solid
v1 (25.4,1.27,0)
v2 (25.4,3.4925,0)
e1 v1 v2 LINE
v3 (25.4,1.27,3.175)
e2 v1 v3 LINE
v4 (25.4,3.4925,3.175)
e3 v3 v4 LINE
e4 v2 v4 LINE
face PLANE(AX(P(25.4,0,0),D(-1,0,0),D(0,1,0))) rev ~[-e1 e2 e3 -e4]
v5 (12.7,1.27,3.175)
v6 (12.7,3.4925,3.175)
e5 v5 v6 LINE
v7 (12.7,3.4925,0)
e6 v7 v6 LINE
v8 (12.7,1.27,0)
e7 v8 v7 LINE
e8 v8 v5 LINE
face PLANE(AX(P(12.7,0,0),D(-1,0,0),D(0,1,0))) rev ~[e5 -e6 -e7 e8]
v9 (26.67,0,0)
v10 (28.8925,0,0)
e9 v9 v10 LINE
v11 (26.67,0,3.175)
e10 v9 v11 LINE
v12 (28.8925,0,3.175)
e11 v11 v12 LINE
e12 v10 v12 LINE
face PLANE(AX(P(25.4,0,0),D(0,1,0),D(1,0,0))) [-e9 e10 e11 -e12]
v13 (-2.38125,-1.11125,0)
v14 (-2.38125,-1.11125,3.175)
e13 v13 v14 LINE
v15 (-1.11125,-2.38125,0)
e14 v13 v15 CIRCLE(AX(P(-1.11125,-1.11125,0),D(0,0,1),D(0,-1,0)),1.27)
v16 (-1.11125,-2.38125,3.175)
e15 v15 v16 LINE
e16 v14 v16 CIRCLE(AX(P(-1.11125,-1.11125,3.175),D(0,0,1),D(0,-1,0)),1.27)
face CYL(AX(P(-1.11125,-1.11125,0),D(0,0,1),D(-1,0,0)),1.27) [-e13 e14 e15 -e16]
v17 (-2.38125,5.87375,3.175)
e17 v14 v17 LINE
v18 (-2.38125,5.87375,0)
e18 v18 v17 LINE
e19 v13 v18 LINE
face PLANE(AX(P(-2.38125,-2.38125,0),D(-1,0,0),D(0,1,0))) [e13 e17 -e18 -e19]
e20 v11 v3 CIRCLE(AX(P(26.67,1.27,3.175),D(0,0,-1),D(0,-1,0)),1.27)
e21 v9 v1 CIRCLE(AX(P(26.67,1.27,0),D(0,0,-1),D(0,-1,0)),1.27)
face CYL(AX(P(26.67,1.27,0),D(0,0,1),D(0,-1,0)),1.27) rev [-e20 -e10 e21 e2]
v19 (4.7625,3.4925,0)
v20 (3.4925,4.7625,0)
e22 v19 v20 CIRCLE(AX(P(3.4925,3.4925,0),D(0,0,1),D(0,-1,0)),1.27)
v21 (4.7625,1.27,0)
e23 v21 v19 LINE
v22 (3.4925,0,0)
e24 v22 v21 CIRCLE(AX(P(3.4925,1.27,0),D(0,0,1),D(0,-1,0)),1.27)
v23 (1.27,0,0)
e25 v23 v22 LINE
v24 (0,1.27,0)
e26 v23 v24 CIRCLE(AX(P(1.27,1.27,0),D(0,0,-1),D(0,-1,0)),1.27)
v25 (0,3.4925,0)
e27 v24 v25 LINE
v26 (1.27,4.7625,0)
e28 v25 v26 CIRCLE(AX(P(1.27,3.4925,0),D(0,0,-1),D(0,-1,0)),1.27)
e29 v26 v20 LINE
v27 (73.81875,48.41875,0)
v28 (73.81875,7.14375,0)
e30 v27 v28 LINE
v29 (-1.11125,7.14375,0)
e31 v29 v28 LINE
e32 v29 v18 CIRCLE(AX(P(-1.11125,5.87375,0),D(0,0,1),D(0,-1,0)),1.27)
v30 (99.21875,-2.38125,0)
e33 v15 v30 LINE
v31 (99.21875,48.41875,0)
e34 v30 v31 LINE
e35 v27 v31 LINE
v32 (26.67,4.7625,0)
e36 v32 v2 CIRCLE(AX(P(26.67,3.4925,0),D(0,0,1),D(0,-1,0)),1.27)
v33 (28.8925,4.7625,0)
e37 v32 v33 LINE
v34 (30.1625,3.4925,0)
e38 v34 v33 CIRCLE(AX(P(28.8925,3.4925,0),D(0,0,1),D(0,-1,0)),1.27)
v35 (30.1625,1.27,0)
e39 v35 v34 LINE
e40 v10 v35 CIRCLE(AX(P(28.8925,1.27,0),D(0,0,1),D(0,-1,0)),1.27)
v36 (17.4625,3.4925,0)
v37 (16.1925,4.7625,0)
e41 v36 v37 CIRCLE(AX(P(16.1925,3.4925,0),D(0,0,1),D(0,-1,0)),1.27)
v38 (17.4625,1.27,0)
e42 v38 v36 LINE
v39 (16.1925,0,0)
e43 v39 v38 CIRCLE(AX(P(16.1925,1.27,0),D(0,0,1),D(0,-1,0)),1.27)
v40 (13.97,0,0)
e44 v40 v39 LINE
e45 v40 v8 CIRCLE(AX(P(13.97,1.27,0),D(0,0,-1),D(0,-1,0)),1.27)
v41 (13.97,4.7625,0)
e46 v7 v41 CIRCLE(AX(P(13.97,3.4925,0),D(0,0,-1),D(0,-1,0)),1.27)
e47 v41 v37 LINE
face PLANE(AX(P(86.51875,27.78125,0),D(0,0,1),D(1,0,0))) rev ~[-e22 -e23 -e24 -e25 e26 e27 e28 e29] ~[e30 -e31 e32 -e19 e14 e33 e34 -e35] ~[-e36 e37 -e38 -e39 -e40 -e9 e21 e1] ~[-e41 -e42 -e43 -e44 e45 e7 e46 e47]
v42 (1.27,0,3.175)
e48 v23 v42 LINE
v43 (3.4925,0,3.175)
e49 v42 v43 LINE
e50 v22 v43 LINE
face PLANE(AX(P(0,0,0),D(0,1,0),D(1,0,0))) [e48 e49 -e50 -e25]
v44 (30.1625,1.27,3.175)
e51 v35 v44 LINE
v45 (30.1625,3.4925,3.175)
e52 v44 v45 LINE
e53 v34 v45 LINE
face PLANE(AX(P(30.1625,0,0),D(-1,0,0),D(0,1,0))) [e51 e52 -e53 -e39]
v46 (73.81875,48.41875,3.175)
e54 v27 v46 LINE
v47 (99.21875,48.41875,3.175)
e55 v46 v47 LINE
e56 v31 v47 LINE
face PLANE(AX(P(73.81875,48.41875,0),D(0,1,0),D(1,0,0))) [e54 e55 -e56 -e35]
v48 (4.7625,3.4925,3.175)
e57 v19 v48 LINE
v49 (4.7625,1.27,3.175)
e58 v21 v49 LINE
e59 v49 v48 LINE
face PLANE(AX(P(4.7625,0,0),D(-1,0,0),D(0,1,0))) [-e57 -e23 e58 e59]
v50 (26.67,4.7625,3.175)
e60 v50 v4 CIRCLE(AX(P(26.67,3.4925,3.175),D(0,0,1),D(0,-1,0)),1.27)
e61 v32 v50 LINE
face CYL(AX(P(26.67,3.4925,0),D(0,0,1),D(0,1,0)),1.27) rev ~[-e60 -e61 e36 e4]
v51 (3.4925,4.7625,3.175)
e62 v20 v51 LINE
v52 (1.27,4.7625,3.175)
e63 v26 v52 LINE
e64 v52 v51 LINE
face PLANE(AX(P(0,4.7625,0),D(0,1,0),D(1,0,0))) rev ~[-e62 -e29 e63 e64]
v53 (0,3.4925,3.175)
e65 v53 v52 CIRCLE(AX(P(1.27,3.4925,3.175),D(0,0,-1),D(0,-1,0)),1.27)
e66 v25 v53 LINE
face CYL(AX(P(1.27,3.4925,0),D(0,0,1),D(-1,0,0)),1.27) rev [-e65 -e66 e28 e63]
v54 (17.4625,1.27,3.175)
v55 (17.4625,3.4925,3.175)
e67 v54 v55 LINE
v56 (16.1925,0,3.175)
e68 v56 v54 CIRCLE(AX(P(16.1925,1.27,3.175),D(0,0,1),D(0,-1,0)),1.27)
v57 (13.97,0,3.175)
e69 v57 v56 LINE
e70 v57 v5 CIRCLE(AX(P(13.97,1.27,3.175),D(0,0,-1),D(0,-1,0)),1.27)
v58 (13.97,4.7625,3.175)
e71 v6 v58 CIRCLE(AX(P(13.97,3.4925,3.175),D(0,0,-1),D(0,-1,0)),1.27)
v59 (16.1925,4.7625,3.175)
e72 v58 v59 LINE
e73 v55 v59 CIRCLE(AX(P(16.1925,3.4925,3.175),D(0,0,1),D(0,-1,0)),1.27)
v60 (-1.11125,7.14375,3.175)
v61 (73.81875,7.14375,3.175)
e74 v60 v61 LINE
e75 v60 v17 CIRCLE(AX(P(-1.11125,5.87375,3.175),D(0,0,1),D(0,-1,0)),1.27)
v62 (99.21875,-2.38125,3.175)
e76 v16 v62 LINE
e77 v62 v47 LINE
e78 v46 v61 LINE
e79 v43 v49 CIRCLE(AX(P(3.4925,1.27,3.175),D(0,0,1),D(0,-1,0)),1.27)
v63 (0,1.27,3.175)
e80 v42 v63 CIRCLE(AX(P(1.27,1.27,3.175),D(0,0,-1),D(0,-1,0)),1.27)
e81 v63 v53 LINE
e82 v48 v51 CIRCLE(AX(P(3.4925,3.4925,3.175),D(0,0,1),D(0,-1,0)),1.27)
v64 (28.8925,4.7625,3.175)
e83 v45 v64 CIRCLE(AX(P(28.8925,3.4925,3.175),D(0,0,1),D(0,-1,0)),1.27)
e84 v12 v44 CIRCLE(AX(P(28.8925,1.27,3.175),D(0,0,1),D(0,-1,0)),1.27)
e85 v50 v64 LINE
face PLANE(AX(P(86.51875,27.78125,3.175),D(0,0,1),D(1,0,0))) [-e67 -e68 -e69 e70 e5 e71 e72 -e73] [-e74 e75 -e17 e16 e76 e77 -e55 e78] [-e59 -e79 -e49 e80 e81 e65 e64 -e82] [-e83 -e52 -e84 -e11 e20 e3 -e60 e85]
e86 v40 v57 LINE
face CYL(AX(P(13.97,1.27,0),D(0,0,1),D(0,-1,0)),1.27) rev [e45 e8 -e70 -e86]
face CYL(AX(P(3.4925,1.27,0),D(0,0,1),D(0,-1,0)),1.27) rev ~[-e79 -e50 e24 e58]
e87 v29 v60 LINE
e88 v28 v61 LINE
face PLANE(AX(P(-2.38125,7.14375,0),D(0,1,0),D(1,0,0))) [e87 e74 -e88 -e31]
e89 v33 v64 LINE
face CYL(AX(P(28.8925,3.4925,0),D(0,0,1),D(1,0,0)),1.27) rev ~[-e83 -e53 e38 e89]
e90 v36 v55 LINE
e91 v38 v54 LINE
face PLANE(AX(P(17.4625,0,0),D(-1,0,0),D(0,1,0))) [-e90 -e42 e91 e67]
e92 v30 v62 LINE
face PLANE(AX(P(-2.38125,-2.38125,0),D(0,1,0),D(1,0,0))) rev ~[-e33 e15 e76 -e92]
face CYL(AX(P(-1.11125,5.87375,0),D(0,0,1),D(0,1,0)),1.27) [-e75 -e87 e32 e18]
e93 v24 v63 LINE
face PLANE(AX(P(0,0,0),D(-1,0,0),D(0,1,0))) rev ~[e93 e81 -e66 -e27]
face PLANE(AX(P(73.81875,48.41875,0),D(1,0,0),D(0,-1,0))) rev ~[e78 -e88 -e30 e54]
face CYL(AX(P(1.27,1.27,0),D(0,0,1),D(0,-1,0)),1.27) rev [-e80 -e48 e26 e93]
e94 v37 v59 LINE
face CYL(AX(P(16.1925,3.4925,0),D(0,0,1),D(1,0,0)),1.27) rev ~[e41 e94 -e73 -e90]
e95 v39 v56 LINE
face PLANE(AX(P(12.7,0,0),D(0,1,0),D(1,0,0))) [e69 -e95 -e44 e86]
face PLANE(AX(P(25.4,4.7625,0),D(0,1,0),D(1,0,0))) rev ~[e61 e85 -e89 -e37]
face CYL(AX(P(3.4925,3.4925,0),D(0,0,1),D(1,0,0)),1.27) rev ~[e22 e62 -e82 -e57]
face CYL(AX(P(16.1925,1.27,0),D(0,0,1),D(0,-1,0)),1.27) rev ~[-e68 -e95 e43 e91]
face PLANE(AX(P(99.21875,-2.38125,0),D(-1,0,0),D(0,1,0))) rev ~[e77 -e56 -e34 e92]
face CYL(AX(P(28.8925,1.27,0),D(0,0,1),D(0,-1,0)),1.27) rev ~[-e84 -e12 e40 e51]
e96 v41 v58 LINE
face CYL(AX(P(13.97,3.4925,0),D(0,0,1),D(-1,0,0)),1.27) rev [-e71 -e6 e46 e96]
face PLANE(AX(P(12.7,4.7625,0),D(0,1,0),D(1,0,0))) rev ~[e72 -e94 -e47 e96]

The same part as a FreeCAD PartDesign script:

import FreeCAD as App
import Part
import Sketcher
Q = App.Units.Quantity


def edges_at(feature, points):
    """Names of the edges that pass closest to the given points."""
    edges = feature.Shape.Edges
    near = lambda p: min(range(len(edges)), key=lambda i: edges[i].distToShape(Part.Vertex(*p))[0])
    return sorted({f"Edge{near(p) + 1}" for p in points})

doc = App.newDocument("Part")
body = doc.addObject("PartDesign::Body", "Body")

# Sketch on XY plane
sketch1 = doc.addObject("Sketcher::SketchObject", "Sketch")
body.addObject(sketch1)
sketch1.AttachmentSupport = (doc.XY_Plane, [""])
sketch1.MapMode = "FlatFace"
sketch1.addGeometry([
    Part.LineSegment(App.Vector(73.8, 48.4, 0), App.Vector(73.8, 7.1, 0)),  # 0
    Part.LineSegment(App.Vector(73.8, 7.1, 0), App.Vector(-2.4, 7.1, 0)),  # 1
    Part.LineSegment(App.Vector(-2.4, 7.1, 0), App.Vector(-2.4, -2.4, 0)),  # 2
    Part.LineSegment(App.Vector(-2.4, -2.4, 0), App.Vector(99.2, -2.4, 0)),  # 3
    Part.LineSegment(App.Vector(99.2, -2.4, 0), App.Vector(99.2, 48.4, 0)),  # 4
    Part.LineSegment(App.Vector(99.2, 48.4, 0), App.Vector(73.8, 48.4, 0)),  # 5
    Part.LineSegment(App.Vector(4.8, 0, 0), App.Vector(0, 0, 0)),  # 6
    Part.LineSegment(App.Vector(0, 0, 0), App.Vector(0, 4.8, 0)),  # 7
    Part.LineSegment(App.Vector(0, 4.8, 0), App.Vector(4.8, 4.8, 0)),  # 8
    Part.LineSegment(App.Vector(4.8, 4.8, 0), App.Vector(4.8, 0, 0)),  # 9
    Part.LineSegment(App.Vector(17.5, 0, 0), App.Vector(12.7, 0, 0)),  # 10
    Part.LineSegment(App.Vector(12.7, 0, 0), App.Vector(12.7, 4.8, 0)),  # 11
    Part.LineSegment(App.Vector(12.7, 4.8, 0), App.Vector(17.5, 4.8, 0)),  # 12
    Part.LineSegment(App.Vector(17.5, 4.8, 0), App.Vector(17.5, 0, 0)),  # 13
    Part.LineSegment(App.Vector(30.2, 0, 0), App.Vector(25.4, 0, 0)),  # 14
    Part.LineSegment(App.Vector(25.4, 0, 0), App.Vector(25.4, 4.8, 0)),  # 15
    Part.LineSegment(App.Vector(25.4, 4.8, 0), App.Vector(30.2, 4.8, 0)),  # 16
    Part.LineSegment(App.Vector(30.2, 4.8, 0), App.Vector(30.2, 0, 0)),  # 17
], False)
sketch1.addConstraint([
    Sketcher.Constraint("Coincident", 0, 2, 1, 1),
    Sketcher.Constraint("Coincident", 1, 2, 2, 1),
    Sketcher.Constraint("Coincident", 2, 2, 3, 1),
    Sketcher.Constraint("Coincident", 3, 2, 4, 1),
    Sketcher.Constraint("Coincident", 4, 2, 5, 1),
    Sketcher.Constraint("Coincident", 5, 2, 0, 1),
    Sketcher.Constraint("Coincident", 6, 2, 7, 1),
    Sketcher.Constraint("Coincident", 7, 2, 8, 1),
    Sketcher.Constraint("Coincident", 8, 2, 9, 1),
    Sketcher.Constraint("Coincident", 9, 2, 6, 1),
    Sketcher.Constraint("Coincident", 10, 2, 11, 1),
    Sketcher.Constraint("Coincident", 11, 2, 12, 1),
    Sketcher.Constraint("Coincident", 12, 2, 13, 1),
    Sketcher.Constraint("Coincident", 13, 2, 10, 1),
    Sketcher.Constraint("Coincident", 14, 2, 15, 1),
    Sketcher.Constraint("Coincident", 15, 2, 16, 1),
    Sketcher.Constraint("Coincident", 16, 2, 17, 1),
    Sketcher.Constraint("Coincident", 17, 2, 14, 1),
    Sketcher.Constraint("Vertical", 0),
    Sketcher.Constraint("Horizontal", 1),
    Sketcher.Constraint("Vertical", 2),
    Sketcher.Constraint("Horizontal", 3),
    Sketcher.Constraint("Vertical", 4),
    Sketcher.Constraint("Horizontal", 5),
    Sketcher.Constraint("Horizontal", 6),
    Sketcher.Constraint("Vertical", 7),
    Sketcher.Constraint("Horizontal", 8),
    Sketcher.Constraint("Vertical", 9),
    Sketcher.Constraint("Horizontal", 10),
    Sketcher.Constraint("Vertical", 11),
    Sketcher.Constraint("Horizontal", 12),
    Sketcher.Constraint("Vertical", 13),
    Sketcher.Constraint("Horizontal", 14),
    Sketcher.Constraint("Vertical", 15),
    Sketcher.Constraint("Horizontal", 16),
    Sketcher.Constraint("Vertical", 17),
    Sketcher.Constraint("Coincident", 6, 2, -1, 1),
    Sketcher.Constraint("PointOnObject", 10, 2, -1),
    Sketcher.Constraint("PointOnObject", 14, 2, -1),
    Sketcher.Constraint("Horizontal", 8, 2, 11, 2),
    Sketcher.Constraint("Horizontal", 12, 2, 15, 2),
    Sketcher.Constraint("Equal", 8, 10),
    Sketcher.Constraint("Equal", 12, 14),
    Sketcher.Constraint("Equal", 16, 7),
    Sketcher.Constraint("DistanceX", 1, 2, 1, 1, Q("3 in")),
    Sketcher.Constraint("DistanceX", 3, 1, 3, 2, Q("4 in")),
    Sketcher.Constraint("DistanceY", 4, 1, 4, 2, Q("2 in")),
    Sketcher.Constraint("DistanceX", -1, 1, 14, 2, Q("1 in")),
    Sketcher.Constraint("DistanceX", -1, 1, 10, 2, Q("0.5 in")),
    Sketcher.Constraint("DistanceX", 6, 2, 6, 1, Q("0.1875 in")),
    Sketcher.Constraint("DistanceY", 0, 2, 0, 1, Q("1.625 in")),
    Sketcher.Constraint("DistanceX", -1, 1, 0, 2, Q("2.90625 in")),
    Sketcher.Constraint("DistanceY", -1, 1, 0, 2, Q("0.28125 in")),
])
pad1 = doc.addObject("PartDesign::Pad", "Pad")
body.addObject(pad1)
pad1.Profile = sketch1
pad1.Length = Q("0.125 in")
doc.recompute()

fillet = doc.addObject("PartDesign::Fillet", "Fillet")
body.addObject(fillet)
fillet.Base = (pad1, edges_at(pad1, [
    (-2.381, -2.381, 1.587),
    (0, 4.763, 1.587),
    (12.7, 4.763, 1.587),
    (25.4, 4.763, 1.587),
    (-2.381, 7.144, 1.587),
    (0, 0, 1.587),
    (12.7, 0, 1.587),
    (25.4, 0, 1.587),
    (4.763, 0, 1.587),
    (17.462, 0, 1.587),
    (30.163, 0, 1.587),
    (4.763, 4.763, 1.587),
    (17.462, 4.763, 1.587),
    (30.163, 4.763, 1.587),
]))
fillet.Radius = Q("0.05 in")

doc.recompute()
